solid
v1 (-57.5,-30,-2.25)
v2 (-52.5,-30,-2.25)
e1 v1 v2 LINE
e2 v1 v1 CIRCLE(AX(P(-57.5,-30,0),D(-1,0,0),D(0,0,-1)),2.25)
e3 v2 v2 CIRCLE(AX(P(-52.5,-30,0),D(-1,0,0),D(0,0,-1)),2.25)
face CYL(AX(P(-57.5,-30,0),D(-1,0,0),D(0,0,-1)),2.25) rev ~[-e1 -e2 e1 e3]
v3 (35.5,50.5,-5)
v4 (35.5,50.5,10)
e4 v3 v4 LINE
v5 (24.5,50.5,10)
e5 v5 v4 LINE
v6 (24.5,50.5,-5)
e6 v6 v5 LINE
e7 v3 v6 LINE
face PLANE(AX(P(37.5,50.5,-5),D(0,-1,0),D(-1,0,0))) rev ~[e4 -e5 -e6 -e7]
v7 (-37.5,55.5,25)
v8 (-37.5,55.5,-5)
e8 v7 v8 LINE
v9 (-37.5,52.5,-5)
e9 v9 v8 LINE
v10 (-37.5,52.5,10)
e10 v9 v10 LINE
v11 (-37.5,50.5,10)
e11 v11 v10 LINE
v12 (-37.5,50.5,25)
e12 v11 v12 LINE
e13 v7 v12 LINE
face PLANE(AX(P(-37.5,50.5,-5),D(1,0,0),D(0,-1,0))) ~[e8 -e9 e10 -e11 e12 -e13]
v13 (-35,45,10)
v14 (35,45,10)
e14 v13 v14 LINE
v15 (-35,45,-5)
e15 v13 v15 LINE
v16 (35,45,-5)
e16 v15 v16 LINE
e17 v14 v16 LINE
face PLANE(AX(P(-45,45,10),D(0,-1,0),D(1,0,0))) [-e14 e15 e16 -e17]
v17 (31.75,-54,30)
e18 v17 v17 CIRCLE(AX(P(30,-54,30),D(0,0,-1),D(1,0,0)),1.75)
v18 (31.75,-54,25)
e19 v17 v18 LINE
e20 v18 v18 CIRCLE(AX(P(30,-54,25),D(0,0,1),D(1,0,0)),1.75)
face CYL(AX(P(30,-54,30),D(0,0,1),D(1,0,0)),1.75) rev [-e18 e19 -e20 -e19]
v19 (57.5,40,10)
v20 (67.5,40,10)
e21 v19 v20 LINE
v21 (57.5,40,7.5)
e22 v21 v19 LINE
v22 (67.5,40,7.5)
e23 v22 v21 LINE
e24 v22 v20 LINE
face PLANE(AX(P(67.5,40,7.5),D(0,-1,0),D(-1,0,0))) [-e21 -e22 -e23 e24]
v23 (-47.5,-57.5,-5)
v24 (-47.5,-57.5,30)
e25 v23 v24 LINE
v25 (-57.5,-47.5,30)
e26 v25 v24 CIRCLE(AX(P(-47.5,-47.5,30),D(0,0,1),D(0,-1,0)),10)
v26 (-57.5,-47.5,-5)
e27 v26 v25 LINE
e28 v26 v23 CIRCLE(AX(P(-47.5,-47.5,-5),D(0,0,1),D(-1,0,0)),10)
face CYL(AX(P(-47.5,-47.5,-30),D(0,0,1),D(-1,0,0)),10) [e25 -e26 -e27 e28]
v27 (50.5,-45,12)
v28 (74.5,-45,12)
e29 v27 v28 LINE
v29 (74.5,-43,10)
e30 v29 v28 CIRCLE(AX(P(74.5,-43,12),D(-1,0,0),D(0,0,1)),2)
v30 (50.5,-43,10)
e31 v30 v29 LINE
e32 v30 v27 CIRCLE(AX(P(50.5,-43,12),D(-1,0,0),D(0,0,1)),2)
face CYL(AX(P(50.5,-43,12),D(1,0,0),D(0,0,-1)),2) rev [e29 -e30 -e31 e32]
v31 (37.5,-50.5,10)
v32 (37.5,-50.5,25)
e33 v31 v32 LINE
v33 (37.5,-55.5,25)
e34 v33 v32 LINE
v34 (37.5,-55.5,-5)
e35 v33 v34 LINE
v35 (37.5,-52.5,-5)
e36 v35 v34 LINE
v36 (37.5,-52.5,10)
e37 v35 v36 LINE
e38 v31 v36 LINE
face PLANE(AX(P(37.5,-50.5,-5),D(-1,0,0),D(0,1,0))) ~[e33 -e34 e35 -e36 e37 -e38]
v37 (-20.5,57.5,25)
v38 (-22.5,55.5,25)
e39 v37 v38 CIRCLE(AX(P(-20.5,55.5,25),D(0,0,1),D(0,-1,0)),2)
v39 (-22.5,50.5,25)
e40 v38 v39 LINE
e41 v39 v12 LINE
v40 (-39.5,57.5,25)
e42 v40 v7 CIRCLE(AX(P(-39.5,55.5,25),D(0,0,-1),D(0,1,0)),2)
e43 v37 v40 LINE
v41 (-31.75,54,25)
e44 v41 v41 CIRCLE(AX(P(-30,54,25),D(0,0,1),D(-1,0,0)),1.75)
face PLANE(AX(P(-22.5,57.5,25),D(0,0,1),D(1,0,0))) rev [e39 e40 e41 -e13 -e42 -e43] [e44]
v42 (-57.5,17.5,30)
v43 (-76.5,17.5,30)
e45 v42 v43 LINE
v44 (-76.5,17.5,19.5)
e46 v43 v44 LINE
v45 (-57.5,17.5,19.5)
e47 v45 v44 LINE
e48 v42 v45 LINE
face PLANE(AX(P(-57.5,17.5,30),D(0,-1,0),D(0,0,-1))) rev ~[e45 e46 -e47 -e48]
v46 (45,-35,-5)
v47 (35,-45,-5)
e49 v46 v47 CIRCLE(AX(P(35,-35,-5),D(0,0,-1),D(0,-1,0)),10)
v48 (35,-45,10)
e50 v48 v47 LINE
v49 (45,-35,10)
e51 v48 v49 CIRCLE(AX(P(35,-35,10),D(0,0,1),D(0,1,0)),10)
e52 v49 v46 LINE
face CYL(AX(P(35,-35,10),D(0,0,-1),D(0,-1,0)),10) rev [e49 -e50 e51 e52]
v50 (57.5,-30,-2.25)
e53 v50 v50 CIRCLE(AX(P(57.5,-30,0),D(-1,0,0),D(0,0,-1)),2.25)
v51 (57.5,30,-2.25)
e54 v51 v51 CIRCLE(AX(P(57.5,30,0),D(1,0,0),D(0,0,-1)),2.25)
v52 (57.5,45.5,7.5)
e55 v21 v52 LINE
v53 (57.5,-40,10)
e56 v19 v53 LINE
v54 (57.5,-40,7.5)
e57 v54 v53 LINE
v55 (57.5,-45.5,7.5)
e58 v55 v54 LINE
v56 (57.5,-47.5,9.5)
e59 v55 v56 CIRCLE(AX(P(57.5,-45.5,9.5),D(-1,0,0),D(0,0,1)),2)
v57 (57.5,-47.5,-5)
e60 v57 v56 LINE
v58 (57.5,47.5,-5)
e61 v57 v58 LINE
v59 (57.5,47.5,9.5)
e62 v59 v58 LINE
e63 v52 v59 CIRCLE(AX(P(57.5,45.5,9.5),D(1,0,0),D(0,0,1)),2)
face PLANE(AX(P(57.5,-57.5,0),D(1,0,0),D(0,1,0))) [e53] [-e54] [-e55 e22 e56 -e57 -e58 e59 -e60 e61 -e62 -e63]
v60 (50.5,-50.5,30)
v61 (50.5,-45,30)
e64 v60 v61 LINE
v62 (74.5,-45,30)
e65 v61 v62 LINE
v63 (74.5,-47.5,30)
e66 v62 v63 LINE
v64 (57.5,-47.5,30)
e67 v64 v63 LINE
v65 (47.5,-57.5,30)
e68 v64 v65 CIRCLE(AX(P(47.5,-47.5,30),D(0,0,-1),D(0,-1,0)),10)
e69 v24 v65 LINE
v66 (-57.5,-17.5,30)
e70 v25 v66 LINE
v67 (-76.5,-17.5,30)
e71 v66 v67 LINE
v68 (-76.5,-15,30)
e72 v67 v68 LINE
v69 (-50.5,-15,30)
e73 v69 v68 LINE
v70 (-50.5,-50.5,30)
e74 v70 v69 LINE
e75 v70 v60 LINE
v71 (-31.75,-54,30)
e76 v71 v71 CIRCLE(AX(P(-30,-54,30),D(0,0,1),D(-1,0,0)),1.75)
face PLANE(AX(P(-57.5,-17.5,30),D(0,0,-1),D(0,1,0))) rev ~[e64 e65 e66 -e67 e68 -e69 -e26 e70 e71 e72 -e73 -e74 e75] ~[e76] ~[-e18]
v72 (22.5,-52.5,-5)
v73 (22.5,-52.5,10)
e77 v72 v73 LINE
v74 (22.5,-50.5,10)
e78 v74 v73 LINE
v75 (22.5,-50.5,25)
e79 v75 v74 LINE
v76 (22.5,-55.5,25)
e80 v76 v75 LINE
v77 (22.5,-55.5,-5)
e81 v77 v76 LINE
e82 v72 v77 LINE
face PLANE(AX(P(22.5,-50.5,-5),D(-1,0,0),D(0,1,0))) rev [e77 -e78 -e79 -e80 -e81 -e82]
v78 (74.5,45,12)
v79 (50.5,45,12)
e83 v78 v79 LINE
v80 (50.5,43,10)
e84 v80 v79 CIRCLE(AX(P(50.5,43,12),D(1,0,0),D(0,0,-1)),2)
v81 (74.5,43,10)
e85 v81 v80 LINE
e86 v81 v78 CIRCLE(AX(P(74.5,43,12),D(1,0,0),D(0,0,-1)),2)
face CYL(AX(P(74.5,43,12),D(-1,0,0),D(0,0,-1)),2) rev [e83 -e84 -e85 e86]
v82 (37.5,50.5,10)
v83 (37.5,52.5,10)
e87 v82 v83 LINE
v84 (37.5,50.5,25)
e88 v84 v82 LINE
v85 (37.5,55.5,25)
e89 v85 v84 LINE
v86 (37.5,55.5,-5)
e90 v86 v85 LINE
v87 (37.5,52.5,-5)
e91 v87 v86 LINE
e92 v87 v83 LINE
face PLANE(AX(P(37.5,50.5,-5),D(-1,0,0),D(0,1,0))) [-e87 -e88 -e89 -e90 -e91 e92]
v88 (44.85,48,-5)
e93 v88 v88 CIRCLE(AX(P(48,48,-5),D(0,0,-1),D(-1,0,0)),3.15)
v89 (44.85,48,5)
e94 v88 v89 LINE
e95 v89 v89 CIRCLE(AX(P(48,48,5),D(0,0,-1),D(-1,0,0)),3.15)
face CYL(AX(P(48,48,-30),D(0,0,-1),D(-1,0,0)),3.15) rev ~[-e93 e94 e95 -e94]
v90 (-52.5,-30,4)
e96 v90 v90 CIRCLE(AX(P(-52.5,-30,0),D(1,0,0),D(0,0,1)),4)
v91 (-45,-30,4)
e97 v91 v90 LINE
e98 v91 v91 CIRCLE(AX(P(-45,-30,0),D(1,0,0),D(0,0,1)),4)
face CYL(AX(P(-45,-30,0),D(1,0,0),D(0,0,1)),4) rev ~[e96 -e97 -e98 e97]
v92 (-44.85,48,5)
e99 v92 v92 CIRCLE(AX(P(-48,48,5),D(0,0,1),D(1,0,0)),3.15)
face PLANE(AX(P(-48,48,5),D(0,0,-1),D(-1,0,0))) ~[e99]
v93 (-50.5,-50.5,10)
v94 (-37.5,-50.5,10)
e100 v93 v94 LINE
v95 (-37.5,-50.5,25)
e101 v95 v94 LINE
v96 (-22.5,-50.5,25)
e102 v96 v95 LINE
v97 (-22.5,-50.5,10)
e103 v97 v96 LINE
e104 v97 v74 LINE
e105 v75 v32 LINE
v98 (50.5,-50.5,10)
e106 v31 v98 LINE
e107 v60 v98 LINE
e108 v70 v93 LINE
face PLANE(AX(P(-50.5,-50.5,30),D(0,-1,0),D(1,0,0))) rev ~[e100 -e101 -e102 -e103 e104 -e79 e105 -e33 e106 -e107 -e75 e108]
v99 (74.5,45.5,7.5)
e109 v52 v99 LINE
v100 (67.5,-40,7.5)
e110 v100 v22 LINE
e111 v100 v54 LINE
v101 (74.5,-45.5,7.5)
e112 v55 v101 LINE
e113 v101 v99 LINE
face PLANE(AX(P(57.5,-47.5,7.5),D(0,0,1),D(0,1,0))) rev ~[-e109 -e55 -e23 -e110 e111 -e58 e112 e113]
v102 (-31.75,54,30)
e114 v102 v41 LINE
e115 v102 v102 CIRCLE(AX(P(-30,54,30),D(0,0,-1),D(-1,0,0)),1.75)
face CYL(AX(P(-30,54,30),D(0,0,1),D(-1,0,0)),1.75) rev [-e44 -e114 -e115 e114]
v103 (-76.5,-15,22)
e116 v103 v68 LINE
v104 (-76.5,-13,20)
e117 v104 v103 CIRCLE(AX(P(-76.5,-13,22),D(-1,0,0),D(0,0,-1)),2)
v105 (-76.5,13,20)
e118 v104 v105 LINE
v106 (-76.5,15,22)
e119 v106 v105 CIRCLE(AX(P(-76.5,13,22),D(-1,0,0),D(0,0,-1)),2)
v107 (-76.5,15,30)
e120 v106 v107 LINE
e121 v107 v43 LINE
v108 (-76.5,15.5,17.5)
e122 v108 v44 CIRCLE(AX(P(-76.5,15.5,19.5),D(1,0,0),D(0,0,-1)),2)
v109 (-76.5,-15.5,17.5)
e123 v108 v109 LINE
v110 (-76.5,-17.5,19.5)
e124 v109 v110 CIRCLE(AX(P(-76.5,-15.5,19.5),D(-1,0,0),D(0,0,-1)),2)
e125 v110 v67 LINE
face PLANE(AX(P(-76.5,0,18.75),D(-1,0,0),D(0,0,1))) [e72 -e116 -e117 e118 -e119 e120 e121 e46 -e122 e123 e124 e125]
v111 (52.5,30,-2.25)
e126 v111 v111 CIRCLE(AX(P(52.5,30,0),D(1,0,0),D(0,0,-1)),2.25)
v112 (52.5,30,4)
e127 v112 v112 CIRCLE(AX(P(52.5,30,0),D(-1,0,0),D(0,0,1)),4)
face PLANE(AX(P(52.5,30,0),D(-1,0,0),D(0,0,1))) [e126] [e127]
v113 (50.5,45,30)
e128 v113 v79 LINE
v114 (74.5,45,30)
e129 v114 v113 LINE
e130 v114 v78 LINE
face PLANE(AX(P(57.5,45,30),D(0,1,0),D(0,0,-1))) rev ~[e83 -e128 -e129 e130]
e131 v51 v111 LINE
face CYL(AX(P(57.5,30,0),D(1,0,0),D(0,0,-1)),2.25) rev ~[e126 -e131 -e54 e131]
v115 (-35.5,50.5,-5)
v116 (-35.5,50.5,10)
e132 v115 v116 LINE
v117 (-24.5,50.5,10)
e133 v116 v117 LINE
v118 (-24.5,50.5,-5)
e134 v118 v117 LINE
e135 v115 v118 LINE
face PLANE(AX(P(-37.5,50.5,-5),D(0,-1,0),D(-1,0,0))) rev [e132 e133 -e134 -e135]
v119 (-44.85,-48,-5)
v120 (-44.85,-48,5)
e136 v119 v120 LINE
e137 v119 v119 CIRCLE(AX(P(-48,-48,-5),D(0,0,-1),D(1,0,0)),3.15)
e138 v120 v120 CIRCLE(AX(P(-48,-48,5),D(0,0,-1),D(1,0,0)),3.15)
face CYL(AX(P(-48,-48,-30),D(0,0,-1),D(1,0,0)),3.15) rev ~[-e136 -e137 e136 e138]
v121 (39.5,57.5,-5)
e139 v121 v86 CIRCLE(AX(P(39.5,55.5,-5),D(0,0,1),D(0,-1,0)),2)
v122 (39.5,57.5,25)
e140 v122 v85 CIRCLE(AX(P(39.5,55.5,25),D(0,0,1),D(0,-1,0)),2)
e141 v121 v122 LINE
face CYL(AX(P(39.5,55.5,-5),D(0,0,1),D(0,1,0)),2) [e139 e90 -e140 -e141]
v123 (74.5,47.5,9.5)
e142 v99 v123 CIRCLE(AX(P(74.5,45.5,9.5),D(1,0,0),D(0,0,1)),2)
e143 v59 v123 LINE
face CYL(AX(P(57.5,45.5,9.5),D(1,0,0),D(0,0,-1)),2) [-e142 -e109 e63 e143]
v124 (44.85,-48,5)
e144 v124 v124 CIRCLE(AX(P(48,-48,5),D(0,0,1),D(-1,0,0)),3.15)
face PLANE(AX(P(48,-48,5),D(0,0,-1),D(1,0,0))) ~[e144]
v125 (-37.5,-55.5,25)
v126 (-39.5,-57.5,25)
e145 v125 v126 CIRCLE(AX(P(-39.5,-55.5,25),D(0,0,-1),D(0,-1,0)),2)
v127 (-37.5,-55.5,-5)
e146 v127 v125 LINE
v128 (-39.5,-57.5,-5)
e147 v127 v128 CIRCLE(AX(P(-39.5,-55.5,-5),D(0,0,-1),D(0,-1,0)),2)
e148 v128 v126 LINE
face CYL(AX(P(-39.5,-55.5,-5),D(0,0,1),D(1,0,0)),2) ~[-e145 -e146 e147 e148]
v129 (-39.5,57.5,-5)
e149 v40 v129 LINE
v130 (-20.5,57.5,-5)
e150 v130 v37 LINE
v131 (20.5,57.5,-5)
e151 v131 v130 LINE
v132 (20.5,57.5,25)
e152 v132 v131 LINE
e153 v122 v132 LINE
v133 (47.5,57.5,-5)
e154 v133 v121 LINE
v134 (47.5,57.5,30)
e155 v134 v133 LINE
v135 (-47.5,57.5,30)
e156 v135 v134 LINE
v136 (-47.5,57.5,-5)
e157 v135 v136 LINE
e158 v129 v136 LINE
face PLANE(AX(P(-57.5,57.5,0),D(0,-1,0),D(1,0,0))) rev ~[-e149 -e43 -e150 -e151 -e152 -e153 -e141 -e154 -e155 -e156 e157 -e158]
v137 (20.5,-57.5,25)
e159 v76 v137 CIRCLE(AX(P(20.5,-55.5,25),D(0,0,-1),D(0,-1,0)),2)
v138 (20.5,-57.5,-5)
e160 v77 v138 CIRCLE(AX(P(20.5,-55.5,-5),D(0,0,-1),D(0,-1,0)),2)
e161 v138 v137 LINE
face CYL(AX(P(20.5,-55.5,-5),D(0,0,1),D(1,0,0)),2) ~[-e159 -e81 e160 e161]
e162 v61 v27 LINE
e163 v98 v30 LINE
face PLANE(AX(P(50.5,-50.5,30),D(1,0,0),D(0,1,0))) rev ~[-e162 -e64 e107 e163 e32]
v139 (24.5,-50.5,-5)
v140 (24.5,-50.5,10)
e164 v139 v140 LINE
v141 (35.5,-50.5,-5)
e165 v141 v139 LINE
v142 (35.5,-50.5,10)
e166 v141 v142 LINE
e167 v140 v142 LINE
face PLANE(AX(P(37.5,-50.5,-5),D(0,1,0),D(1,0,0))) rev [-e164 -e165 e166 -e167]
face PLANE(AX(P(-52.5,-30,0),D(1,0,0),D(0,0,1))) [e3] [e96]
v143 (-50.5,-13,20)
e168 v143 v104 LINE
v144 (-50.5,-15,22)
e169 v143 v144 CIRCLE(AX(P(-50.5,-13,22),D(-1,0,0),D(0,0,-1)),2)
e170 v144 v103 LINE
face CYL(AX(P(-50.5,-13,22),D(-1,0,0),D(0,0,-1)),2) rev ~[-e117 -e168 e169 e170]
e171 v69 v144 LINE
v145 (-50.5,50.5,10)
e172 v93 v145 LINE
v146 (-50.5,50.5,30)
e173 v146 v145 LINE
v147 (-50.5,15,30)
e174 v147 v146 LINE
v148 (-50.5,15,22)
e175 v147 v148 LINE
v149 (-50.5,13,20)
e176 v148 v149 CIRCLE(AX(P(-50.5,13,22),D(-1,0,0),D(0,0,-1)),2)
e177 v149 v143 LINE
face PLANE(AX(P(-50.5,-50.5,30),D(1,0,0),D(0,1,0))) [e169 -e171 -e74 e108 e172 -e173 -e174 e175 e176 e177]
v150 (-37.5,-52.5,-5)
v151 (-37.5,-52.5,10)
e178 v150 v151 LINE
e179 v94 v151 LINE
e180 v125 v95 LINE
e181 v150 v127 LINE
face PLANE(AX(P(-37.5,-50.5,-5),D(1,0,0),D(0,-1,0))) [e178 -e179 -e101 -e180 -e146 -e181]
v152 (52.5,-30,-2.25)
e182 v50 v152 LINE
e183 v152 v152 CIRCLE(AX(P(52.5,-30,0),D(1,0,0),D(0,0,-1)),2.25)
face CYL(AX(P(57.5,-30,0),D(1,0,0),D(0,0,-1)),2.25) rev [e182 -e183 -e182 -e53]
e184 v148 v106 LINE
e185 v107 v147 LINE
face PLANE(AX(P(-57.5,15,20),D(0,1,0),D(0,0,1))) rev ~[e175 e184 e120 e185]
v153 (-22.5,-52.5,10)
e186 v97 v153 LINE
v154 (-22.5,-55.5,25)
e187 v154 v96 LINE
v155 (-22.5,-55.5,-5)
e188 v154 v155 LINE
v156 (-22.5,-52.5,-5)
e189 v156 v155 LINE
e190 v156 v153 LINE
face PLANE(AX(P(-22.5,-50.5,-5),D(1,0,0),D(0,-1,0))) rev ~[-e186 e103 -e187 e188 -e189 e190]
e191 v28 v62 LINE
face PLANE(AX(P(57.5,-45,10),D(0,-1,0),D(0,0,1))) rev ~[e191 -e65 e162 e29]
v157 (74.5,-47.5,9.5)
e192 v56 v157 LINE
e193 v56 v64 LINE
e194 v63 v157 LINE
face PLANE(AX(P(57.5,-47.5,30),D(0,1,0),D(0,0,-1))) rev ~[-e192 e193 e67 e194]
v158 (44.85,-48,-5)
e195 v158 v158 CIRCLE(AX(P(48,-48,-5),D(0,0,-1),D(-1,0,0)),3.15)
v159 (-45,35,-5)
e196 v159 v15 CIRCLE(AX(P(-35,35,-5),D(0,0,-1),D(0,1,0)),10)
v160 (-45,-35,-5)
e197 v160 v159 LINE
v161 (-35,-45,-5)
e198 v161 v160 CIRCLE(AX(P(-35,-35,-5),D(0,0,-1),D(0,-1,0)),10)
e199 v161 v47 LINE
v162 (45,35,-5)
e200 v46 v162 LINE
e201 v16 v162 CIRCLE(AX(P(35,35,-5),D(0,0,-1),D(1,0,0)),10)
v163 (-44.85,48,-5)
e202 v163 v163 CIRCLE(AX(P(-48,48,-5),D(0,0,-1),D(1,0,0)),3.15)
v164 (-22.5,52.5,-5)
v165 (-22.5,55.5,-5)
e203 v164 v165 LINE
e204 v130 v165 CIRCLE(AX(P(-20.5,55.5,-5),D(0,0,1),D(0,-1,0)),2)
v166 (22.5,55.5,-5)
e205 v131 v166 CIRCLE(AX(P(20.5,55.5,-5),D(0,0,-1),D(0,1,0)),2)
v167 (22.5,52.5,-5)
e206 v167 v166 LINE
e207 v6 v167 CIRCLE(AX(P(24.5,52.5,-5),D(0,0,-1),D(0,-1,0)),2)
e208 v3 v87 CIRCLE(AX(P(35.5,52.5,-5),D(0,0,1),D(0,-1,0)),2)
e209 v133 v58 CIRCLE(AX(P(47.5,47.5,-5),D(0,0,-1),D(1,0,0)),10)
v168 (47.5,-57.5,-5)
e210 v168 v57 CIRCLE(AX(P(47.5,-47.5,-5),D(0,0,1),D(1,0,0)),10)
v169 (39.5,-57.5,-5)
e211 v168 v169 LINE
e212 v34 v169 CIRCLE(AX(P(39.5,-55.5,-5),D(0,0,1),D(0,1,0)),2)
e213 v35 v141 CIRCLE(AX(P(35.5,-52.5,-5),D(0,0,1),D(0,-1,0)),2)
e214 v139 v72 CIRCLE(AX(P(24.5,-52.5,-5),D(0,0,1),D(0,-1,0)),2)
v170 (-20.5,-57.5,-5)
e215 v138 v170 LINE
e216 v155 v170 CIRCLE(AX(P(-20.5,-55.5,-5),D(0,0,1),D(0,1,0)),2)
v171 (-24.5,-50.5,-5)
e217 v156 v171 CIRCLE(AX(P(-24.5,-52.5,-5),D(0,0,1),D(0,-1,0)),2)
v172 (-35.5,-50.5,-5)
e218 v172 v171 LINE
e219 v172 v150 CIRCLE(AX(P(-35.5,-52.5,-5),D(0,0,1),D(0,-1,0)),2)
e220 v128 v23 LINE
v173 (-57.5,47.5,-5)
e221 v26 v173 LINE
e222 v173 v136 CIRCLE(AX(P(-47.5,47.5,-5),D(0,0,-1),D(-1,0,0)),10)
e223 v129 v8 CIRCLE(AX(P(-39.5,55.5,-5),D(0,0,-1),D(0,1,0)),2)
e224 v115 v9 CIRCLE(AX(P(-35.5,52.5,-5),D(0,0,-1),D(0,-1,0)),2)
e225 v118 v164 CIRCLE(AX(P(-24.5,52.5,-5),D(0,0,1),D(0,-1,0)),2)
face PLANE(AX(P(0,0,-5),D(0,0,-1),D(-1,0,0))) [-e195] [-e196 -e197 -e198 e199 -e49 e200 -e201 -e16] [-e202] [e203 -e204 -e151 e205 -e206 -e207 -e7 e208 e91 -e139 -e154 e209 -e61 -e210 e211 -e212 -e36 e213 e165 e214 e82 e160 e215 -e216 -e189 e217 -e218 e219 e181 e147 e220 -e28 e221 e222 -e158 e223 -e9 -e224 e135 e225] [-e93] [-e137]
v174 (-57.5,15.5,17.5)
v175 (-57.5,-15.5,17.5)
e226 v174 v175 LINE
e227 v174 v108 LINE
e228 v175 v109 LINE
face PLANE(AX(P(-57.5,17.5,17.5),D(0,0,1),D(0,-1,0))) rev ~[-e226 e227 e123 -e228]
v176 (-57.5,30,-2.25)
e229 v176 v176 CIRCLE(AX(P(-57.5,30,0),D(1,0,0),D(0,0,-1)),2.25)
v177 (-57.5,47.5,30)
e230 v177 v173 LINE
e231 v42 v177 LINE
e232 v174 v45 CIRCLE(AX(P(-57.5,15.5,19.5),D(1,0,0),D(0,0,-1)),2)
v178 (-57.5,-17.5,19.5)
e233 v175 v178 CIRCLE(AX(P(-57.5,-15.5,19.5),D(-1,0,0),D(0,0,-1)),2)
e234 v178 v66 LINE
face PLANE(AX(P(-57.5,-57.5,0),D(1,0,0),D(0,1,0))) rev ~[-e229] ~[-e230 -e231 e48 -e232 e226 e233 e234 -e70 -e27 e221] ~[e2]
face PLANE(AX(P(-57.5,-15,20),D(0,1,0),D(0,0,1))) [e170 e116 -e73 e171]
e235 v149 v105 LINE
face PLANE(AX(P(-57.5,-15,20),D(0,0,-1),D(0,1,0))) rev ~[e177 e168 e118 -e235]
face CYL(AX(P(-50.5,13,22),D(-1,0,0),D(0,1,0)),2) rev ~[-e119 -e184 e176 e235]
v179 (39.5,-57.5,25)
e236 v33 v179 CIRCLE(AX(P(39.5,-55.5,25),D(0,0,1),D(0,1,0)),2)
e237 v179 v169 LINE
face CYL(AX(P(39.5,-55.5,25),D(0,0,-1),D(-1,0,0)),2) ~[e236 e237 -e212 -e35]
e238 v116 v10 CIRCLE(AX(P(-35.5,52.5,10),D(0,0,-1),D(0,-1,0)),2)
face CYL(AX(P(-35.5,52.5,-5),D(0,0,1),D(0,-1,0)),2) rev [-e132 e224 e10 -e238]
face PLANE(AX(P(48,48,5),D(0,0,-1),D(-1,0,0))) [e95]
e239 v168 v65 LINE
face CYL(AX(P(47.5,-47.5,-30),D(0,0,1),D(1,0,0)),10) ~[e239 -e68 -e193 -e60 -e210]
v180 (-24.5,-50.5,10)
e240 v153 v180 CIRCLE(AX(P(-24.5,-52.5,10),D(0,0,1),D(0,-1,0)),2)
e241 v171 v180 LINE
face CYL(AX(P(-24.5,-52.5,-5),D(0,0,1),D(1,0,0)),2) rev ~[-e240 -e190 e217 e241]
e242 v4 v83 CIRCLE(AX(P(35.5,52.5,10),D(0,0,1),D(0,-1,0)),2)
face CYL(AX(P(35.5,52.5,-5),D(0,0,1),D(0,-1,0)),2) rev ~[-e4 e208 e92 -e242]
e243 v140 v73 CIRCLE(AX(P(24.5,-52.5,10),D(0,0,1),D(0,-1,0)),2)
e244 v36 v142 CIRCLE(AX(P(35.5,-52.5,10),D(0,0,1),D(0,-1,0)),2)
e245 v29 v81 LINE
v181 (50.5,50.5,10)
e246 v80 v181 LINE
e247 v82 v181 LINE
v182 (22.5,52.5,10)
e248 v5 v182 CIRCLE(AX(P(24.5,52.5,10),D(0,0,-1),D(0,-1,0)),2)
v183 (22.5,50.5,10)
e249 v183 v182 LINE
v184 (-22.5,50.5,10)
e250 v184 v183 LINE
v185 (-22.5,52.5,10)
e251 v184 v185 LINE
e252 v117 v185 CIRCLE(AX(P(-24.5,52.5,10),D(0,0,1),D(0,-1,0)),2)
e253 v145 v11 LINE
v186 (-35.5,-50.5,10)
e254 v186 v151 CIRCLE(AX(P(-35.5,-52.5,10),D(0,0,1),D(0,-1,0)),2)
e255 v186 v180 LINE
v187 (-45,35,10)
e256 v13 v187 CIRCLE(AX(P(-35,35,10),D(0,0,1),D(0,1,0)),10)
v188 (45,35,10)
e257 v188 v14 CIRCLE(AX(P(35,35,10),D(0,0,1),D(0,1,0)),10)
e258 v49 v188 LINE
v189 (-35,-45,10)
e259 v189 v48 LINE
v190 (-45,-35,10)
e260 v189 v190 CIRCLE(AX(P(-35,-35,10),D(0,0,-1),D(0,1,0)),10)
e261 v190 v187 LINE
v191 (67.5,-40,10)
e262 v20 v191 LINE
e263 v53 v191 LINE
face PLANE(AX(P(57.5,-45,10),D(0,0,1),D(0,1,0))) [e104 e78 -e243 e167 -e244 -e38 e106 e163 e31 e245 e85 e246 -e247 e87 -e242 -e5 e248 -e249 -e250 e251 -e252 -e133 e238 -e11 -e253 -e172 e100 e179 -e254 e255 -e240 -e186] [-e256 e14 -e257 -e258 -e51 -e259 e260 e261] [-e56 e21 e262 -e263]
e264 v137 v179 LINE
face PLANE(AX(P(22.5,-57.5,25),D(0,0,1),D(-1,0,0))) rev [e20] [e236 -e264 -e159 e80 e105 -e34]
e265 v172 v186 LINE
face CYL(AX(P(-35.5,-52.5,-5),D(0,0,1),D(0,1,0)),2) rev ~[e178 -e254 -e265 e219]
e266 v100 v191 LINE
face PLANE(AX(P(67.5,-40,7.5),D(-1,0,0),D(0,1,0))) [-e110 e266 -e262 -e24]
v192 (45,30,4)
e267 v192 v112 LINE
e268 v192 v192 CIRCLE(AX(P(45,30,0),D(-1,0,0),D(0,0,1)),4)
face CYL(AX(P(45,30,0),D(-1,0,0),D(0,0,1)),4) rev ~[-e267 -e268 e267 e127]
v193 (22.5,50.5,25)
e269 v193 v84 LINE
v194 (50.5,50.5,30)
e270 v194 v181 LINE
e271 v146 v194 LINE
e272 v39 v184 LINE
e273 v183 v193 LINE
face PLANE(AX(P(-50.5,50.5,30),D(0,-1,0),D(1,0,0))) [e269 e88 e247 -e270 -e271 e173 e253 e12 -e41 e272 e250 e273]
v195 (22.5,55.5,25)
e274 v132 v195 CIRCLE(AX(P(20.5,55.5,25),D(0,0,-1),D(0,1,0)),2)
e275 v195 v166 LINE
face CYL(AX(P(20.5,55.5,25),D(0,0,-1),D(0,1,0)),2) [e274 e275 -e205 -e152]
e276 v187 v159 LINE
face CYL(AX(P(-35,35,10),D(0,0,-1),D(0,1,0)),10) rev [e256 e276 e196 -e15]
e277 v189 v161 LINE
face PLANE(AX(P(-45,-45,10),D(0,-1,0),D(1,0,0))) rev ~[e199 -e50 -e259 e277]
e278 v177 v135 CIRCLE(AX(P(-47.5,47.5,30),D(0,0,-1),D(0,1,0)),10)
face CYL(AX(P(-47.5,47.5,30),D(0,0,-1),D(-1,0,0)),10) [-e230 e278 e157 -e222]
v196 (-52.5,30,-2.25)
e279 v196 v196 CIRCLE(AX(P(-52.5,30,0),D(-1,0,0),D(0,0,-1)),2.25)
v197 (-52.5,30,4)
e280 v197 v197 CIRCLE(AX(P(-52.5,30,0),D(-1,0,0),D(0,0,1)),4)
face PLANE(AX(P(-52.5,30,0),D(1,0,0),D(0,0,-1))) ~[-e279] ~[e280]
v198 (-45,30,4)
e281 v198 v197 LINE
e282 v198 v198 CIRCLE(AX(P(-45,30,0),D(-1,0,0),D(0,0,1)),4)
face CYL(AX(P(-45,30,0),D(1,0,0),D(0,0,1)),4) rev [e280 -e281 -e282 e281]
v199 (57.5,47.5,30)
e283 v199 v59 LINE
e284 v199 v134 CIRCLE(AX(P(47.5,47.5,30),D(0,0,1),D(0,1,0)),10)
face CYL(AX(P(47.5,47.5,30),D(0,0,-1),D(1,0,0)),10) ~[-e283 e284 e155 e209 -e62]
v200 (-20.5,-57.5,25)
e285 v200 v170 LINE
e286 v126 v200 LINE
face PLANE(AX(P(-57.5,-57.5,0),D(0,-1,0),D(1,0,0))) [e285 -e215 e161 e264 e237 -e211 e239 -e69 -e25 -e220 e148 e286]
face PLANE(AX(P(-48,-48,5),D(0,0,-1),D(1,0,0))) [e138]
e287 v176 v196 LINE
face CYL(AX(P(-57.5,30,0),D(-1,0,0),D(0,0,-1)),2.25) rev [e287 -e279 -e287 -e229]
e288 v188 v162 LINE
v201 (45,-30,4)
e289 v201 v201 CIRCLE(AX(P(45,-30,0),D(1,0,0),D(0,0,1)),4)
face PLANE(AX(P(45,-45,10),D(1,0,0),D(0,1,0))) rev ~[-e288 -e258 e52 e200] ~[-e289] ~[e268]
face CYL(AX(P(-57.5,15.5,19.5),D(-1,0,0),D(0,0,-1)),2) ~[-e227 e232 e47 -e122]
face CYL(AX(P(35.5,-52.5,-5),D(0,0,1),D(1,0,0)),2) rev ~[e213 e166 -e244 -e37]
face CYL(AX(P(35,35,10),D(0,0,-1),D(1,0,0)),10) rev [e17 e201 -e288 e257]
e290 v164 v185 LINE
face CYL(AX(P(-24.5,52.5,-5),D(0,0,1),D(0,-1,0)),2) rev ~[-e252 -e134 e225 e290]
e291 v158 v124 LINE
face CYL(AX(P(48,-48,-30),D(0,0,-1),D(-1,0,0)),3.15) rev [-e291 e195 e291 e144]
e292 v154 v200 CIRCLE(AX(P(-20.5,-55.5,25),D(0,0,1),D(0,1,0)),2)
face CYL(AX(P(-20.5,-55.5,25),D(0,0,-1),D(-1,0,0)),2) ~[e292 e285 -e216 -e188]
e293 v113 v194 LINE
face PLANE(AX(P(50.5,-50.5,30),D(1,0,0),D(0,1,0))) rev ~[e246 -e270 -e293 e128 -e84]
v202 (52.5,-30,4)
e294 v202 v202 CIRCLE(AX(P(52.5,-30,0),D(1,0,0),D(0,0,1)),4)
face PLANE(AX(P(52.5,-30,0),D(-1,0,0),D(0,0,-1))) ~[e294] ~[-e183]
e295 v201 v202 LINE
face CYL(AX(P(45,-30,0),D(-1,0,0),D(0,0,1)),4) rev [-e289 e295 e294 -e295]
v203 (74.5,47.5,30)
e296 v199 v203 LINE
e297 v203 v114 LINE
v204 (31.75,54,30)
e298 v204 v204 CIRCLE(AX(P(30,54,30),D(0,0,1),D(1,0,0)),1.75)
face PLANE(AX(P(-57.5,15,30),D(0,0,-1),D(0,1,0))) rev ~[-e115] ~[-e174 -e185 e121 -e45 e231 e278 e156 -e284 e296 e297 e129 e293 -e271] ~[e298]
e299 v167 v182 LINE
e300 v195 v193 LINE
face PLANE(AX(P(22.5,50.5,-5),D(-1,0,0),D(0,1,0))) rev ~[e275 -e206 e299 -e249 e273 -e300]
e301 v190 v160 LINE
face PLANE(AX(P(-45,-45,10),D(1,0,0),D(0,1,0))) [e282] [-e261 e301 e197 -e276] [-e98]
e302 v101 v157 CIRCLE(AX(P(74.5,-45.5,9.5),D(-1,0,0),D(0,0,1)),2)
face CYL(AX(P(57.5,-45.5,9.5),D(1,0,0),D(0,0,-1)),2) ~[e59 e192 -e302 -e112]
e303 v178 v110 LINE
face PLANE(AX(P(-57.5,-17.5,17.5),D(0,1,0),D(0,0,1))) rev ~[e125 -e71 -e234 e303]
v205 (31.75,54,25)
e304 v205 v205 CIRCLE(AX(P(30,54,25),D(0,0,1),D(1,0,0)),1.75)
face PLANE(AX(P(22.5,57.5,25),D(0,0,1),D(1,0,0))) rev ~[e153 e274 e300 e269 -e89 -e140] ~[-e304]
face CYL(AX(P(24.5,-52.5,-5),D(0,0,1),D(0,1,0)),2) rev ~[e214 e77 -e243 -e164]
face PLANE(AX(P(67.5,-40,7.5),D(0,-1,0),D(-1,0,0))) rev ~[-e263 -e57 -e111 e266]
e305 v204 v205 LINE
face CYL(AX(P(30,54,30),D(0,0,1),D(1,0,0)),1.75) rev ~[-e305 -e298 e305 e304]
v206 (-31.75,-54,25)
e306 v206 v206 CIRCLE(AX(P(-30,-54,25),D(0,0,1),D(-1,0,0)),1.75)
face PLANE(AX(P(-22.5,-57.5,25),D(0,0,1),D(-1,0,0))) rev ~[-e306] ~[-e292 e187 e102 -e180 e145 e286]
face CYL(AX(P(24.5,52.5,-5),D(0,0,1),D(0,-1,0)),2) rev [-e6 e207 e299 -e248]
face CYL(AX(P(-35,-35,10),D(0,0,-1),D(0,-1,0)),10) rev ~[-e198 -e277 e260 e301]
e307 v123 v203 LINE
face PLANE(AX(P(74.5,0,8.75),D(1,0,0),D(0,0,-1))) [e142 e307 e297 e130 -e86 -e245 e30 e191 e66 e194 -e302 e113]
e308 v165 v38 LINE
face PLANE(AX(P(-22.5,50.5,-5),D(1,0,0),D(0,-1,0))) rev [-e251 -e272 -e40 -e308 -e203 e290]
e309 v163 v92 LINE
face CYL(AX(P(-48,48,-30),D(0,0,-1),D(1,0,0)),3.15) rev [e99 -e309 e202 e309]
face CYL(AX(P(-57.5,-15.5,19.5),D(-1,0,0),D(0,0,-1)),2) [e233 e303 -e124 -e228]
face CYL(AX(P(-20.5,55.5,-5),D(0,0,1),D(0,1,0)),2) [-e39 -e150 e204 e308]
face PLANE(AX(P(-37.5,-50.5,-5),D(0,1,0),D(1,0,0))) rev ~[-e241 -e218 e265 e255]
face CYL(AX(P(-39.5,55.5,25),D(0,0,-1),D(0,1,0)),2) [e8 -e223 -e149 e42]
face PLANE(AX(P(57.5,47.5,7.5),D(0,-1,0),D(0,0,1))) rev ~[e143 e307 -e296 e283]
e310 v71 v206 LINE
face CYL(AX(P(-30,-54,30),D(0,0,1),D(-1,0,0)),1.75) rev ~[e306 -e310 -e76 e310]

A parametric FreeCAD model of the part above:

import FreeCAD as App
import Part
import Sketcher
from FreeCAD import Vector


def edges_at(feature, points):
    """Names of the edges that pass closest to the given points."""
    edges = feature.Shape.Edges
    near = lambda p: min(range(len(edges)), key=lambda i: edges[i].distToShape(Part.Vertex(*p))[0])
    return sorted({f"Edge{near(p) + 1}" for p in points})


def add_polygon(sketch, points):
    """Adds a closed chain of lines whose ends are joined by coincident constraints."""
    first, n = sketch.GeometryCount, len(points)
    for a, b in zip(points, points[1:] + points[:1]):
        sketch.addGeometry(Part.LineSegment(App.Vector(*a, 0), App.Vector(*b, 0)), False)
    for i in range(n):
        sketch.addConstraint(Sketcher.Constraint("Coincident", first + i, 2, first + (i + 1) % n, 1))

doc = App.newDocument("Part")
body = doc.addObject("PartDesign::Body", "Body")

# Sketch on XY plane
sketch1 = body.newObject("Sketcher::SketchObject", "Sketch")
sketch1.AttachmentSupport = (doc.getObject("XY_Plane"), [""])
sketch1.MapMode = "FlatFace"
add_polygon(sketch1, [(-58, 58), (-58, -58), (58, -58), (58, 58)])  # lines 0-3
sketch1.addConstraint([
    Sketcher.Constraint("Vertical", 0),
    Sketcher.Constraint("Horizontal", 1),
    Sketcher.Constraint("Vertical", 2),
    Sketcher.Constraint("Horizontal", 3),
    Sketcher.Constraint("Symmetric", 0, 2, 2, 2, -1, 1),
    Sketcher.Constraint("Equal", 3, 0),
    Sketcher.Constraint("DistanceX", 1, 1, 1, 2, 115.0),
])
pad1 = body.newObject("PartDesign::Pad", "Pad")
pad1.Profile = sketch1
pad1.Length = 60
pad1.Midplane = True
doc.recompute()

fillet = body.newObject("PartDesign::Fillet", "Fillet")
fillet.Base = (pad1, edges_at(pad1, [
    (-57.5, 57.5, 0),
    (57.5, 57.5, 0),
    (57.5, -57.5, 0),
    (-57.5, -57.5, 0),
]))
fillet.Radius = 10

# Sketch on XY plane
sketch2 = body.newObject("Sketcher::SketchObject", "Sketch001")
sketch2.AttachmentSupport = (doc.getObject("XY_Plane"), [""])
sketch2.MapMode = "FlatFace"
sketch2.AttachmentOffset = App.Placement(Vector(0, 0, 30), App.Rotation())
add_polygon(sketch2, [(-50, 50), (-50, -50), (50, -50), (50, 50)])  # lines 0-3
sketch2.addConstraint([
    Sketcher.Constraint("Vertical", 0),
    Sketcher.Constraint("Horizontal", 1),
    Sketcher.Constraint("Vertical", 2),
    Sketcher.Constraint("Horizontal", 3),
    Sketcher.Constraint("Symmetric", 0, 2, 2, 2, -1, 1),
    Sketcher.Constraint("Equal", 3, 0),
    Sketcher.Constraint("DistanceX", 1, 1, 1, 2, 101.0),
])
pocket1 = body.newObject("PartDesign::Pocket", "Pocket")
pocket1.Profile = sketch2
pocket1.Length = 20

# Sketch on XY plane
sketch3 = body.newObject("Sketcher::SketchObject", "Sketch002")
sketch3.AttachmentSupport = (doc.getObject("XY_Plane"), [""])
sketch3.MapMode = "FlatFace"
sketch3.AttachmentOffset = App.Placement(Vector(0, 0, 10), App.Rotation())
add_polygon(sketch3, [(-45, 45), (-45, -45), (45, -45), (45, 45)])  # lines 0-3
sketch3.addConstraint([
    Sketcher.Constraint("Vertical", 0),
    Sketcher.Constraint("Horizontal", 1),
    Sketcher.Constraint("Vertical", 2),
    Sketcher.Constraint("Horizontal", 3),
    Sketcher.Constraint("Symmetric", 0, 2, 2, 2, -1, 1),
    Sketcher.Constraint("Equal", 3, 0),
    Sketcher.Constraint("DistanceX", 1, 1, 1, 2, 90.0),
])
pocket2 = body.newObject("PartDesign::Pocket", "Pocket001")
pocket2.Profile = sketch3
pocket2.Length = 60
doc.recompute()

fillet2 = body.newObject("PartDesign::Fillet", "Fillet001")
fillet2.Base = (pocket2, edges_at(pocket2, [
    (-45, -45, -10),
    (-45, 45, -10),
    (45, 45, -10),
    (45, -45, -10),
]))
fillet2.Radius = 10

# Sketch on XY plane
sketch4 = body.newObject("Sketcher::SketchObject", "Sketch003")
sketch4.AttachmentSupport = (doc.getObject("XY_Plane"), [""])
sketch4.MapMode = "FlatFace"
sketch4.AttachmentOffset = App.Placement(Vector(0, 0, -30), App.Rotation())
sketch4.addGeometry(Part.Circle(Vector(48, 48, 0), Vector(0, 0, 1), 3.1), False)
sketch4.addConstraint([
    Sketcher.Constraint("Diameter", 0, 6.3),
    Sketcher.Constraint("DistanceX", -1, 1, 0, 3, 48.0),
    Sketcher.Constraint("DistanceY", -1, 1, 0, 3, 48.0),
])
pocket3 = body.newObject("PartDesign::Pocket", "Pocket002")
pocket3.Profile = sketch4
pocket3.Length = 35
pocket3.Reversed = True
doc.recompute()

mirrored = body.newObject("PartDesign::Mirrored", "Mirrored")
mirrored.Originals = [pocket3]
mirrored.MirrorPlane = (doc.getObject("XZ_Plane"), [""])
body.Tip = mirrored
doc.recompute()

mirrored2 = body.newObject("PartDesign::Mirrored", "Mirrored001")
mirrored2.Originals = [pocket3]
mirrored2.MirrorPlane = (doc.getObject("YZ_Plane"), [""])
body.Tip = mirrored2

# Sketch on XY plane
sketch5 = body.newObject("Sketcher::SketchObject", "Sketch004")
sketch5.AttachmentSupport = (doc.getObject("XY_Plane"), [""])
sketch5.MapMode = "FlatFace"
sketch5.AttachmentOffset = App.Placement(Vector(0, 0, -30), App.Rotation())
sketch5.addGeometry(Part.Circle(Vector(-48, -48, 0), Vector(0, 0, 1), 3.1), False)
sketch5.addConstraint([
    Sketcher.Constraint("Diameter", 0, 6.3),
    Sketcher.Constraint("DistanceX", 0, 3, -1, 1, 48.0),
    Sketcher.Constraint("DistanceY", 0, 3, -1, 1, 48.0),
])
pocket4 = body.newObject("PartDesign::Pocket", "Pocket003")
pocket4.Profile = sketch5
pocket4.Length = 35
pocket4.Reversed = True

# Sketch on YZ plane
sketch6 = body.newObject("Sketcher::SketchObject", "Sketch005")
sketch6.AttachmentSupport = (doc.getObject("YZ_Plane"), [""])
sketch6.MapMode = "FlatFace"
sketch6.AttachmentOffset = App.Placement(Vector(0, 0, 57.5), App.Rotation())
add_polygon(sketch6, [(45, 50), (-45, 50), (-45, 10), (45, 10)])  # lines 0-3
sketch6.addConstraint([
    Sketcher.Constraint("Horizontal", 0),
    Sketcher.Constraint("Vertical", 1),
    Sketcher.Constraint("Horizontal", 2),
    Sketcher.Constraint("Vertical", 3),
    Sketcher.Constraint("DistanceX", 0, 2, 0, 1, 90.0),
    Sketcher.Constraint("DistanceY", 1, 2, 1, 1, 40.0),
    Sketcher.Constraint("DistanceX", 0, 2, -1, 1, 45.0),
    Sketcher.Constraint("DistanceY", -1, 1, 0, 2, 50.0),
])
pocket5 = body.newObject("PartDesign::Pocket", "Pocket004")
pocket5.Profile = sketch6
pocket5.Length = 11

# Sketch on YZ plane
sketch7 = body.newObject("Sketcher::SketchObject", "Sketch006")
sketch7.AttachmentSupport = (doc.getObject("YZ_Plane"), [""])
sketch7.MapMode = "FlatFace"
sketch7.AttachmentOffset = App.Placement(Vector(0, 0, 57.5), App.Rotation())
add_polygon(sketch7, [(45, 10), (-45, 10), (-45, 30), (-47.5, 30), (-47.5, 7.5), (47.5, 7.5), (47.5, 30), (45, 30)])  # lines 0-7
sketch7.addConstraint([
    Sketcher.Constraint("Horizontal", 0),
    Sketcher.Constraint("Vertical", 1),
    Sketcher.Constraint("Horizontal", 2),
    Sketcher.Constraint("Vertical", 3),
    Sketcher.Constraint("Horizontal", 4),
    Sketcher.Constraint("Vertical", 5),
    Sketcher.Constraint("Horizontal", 6),
    Sketcher.Constraint("Vertical", 7),
    Sketcher.Constraint("Symmetric", 2, 2, 5, 2, -2),
    Sketcher.Constraint("Equal", 2, 6),
    Sketcher.Constraint("DistanceX", 0, 2, 0, 1, 90.0),
    Sketcher.Constraint("DistanceX", 4, 1, 4, 2, 95.0),
    Sketcher.Constraint("DistanceY", 1, 1, 1, 2, 20.0),
    Sketcher.Constraint("DistanceY", 3, 2, 3, 1, 22.5),
    Sketcher.Constraint("DistanceY", -1, 1, 0, 2, 10.0),
])
pad2 = body.newObject("PartDesign::Pad", "Pad001")
pad2.Profile = sketch7
pad2.Length = 17
doc.recompute()

fillet3 = body.newObject("PartDesign::Fillet", "Fillet002")
fillet3.Base = (pad2, edges_at(pad2, [
    (62.5, 45, 10),
    (62.5, -45, 10),
    (66, -47.5, 7.5),
    (66, 47.5, 7.5),
]))
fillet3.Radius = 2

# Sketch on YZ plane
sketch8 = body.newObject("Sketcher::SketchObject", "Sketch007")
sketch8.AttachmentSupport = (doc.getObject("YZ_Plane"), [""])
sketch8.MapMode = "FlatFace"
sketch8.AttachmentOffset = App.Placement(Vector(0, 0, -57.5), App.Rotation())
add_polygon(sketch8, [(15, 20), (-15, 20), (-15, 40), (15, 40)])  # lines 0-3
sketch8.addConstraint([
    Sketcher.Constraint("Horizontal", 0),
    Sketcher.Constraint("Vertical", 1),
    Sketcher.Constraint("Horizontal", 2),
    Sketcher.Constraint("Vertical", 3),
    Sketcher.Constraint("DistanceX", 0, 2, 0, 1, 30.0),
    Sketcher.Constraint("DistanceY", 1, 1, 1, 2, 20.0),
    Sketcher.Constraint("DistanceX", 0, 2, -1, 1, 15.0),
    Sketcher.Constraint("DistanceY", -1, 1, 0, 2, 20.0),
])
pocket6 = body.newObject("PartDesign::Pocket", "Pocket005")
pocket6.Profile = sketch8
pocket6.Length = 11
pocket6.Reversed = True

# Sketch on YZ plane
sketch9 = body.newObject("Sketcher::SketchObject", "Sketch008")
sketch9.AttachmentSupport = (doc.getObject("YZ_Plane"), [""])
sketch9.MapMode = "FlatFace"
sketch9.AttachmentOffset = App.Placement(Vector(0, 0, -57.5), App.Rotation())
add_polygon(sketch9, [(17.5, 17.5), (-17.5, 17.5), (-17.5, 30), (-15, 30), (-15, 20), (15, 20), (15, 30), (17.5, 30)])  # lines 0-7
sketch9.addConstraint([
    Sketcher.Constraint("Horizontal", 0),
    Sketcher.Constraint("Vertical", 1),
    Sketcher.Constraint("Horizontal", 2),
    Sketcher.Constraint("Vertical", 3),
    Sketcher.Constraint("Horizontal", 4),
    Sketcher.Constraint("Vertical", 5),
    Sketcher.Constraint("Horizontal", 6),
    Sketcher.Constraint("Vertical", 7),
    Sketcher.Constraint("Symmetric", 2, 2, 5, 2, -2),
    Sketcher.Constraint("Equal", 2, 6),
    Sketcher.Constraint("DistanceX", 0, 2, 0, 1, 35.0),
    Sketcher.Constraint("DistanceX", 4, 1, 4, 2, 30.0),
    Sketcher.Constraint("DistanceY", 3, 2, 3, 1, 10.0),
    Sketcher.Constraint("DistanceY", 1, 1, 1, 2, 12.5),
    Sketcher.Constraint("DistanceY", -1, 1, 1, 2, 30.0),
])
pad3 = body.newObject("PartDesign::Pad", "Pad002")
pad3.Profile = sketch9
pad3.Length = 19
pad3.Reversed = True
doc.recompute()

fillet4 = body.newObject("PartDesign::Fillet", "Fillet003")
fillet4.Base = (pad3, edges_at(pad3, [
    (-63.5, -15, 20),
    (-63.5, 15, 20),
    (-67, 17.5, 17.5),
    (-67, -17.5, 17.5),
]))
fillet4.Radius = 2

# Sketch on XY plane
sketch10 = body.newObject("Sketcher::SketchObject", "Sketch009")
sketch10.AttachmentSupport = (doc.getObject("XY_Plane"), [""])
sketch10.MapMode = "FlatFace"
sketch10.AttachmentOffset = App.Placement(Vector(0, 0, -30), App.Rotation())
add_polygon(sketch10, [(58, 58), (58, -58), (-58, -58), (-58, 58)])  # lines 0-3
sketch10.addConstraint([
    Sketcher.Constraint("Vertical", 0),
    Sketcher.Constraint("Horizontal", 1),
    Sketcher.Constraint("Vertical", 2),
    Sketcher.Constraint("Horizontal", 3),
    Sketcher.Constraint("Symmetric", 0, 2, 2, 2, -1, 1),
    Sketcher.Constraint("Equal", 3, 0),
    Sketcher.Constraint("DistanceX", 1, 2, 1, 1, 115.0),
])
pocket7 = body.newObject("PartDesign::Pocket", "Pocket006")
pocket7.Profile = sketch10
pocket7.Length = 25
pocket7.Reversed = True

# Sketch on XY plane
sketch11 = body.newObject("Sketcher::SketchObject", "Sketch010")
sketch11.AttachmentSupport = (doc.getObject("XY_Plane"), [""])
sketch11.MapMode = "FlatFace"
sketch11.AttachmentOffset = App.Placement(Vector(0, 0, 7.5), App.Rotation())
add_polygon(sketch11, [(68, 40), (68, -40), (58, -40), (58, 40)])  # lines 0-3
sketch11.addConstraint([
    Sketcher.Constraint("Vertical", 0),
    Sketcher.Constraint("Horizontal", 1),
    Sketcher.Constraint("Vertical", 2),
    Sketcher.Constraint("Horizontal", 3),
    Sketcher.Constraint("DistanceX", 1, 2, 1, 1, 10.0),
    Sketcher.Constraint("DistanceY", 0, 2, 0, 1, 80.0),
    Sketcher.Constraint("DistanceY", 0, 2, -1, 1, 40.0),
    Sketcher.Constraint("DistanceX", -1, 1, 0, 2, 67.5),
])
pocket8 = body.newObject("PartDesign::Pocket", "Pocket007")
pocket8.Profile = sketch11
pocket8.Length = 15
pocket8.Reversed = True

# Sketch on YZ plane
sketch12 = body.newObject("Sketcher::SketchObject", "Sketch011")
sketch12.AttachmentSupport = (doc.getObject("YZ_Plane"), [""])
sketch12.MapMode = "FlatFace"
sketch12.AttachmentOffset = App.Placement(Vector(0, 0, 57.5), App.Rotation())
sketch12.addGeometry(Part.Circle(Vector(30, 0, 0), Vector(0, 0, 1), 2.2), False)
sketch12.addConstraint([
    Sketcher.Constraint("PointOnObject", 0, 3, -1),
    Sketcher.Constraint("Diameter", 0, 4.5),
    Sketcher.Constraint("DistanceX", -1, 1, 0, 3, 30.0),
])
pocket9 = body.newObject("PartDesign::Pocket", "Pocket008")
pocket9.Profile = sketch12
pocket9.Length = 25
doc.recompute()

mirrored3 = body.newObject("PartDesign::Mirrored", "Mirrored002")
mirrored3.Originals = [pocket9]
mirrored3.MirrorPlane = (doc.getObject("YZ_Plane"), [""])
body.Tip = mirrored3
doc.recompute()

mirrored4 = body.newObject("PartDesign::Mirrored", "Mirrored003")
mirrored4.Originals = [pocket9]
mirrored4.MirrorPlane = (doc.getObject("XZ_Plane"), [""])
body.Tip = mirrored4

# Sketch on YZ plane
sketch13 = body.newObject("Sketcher::SketchObject", "Sketch012")
sketch13.AttachmentSupport = (doc.getObject("YZ_Plane"), [""])
sketch13.MapMode = "FlatFace"
sketch13.AttachmentOffset = App.Placement(Vector(0, 0, -57.5), App.Rotation())
sketch13.addGeometry(Part.Circle(Vector(-30, 0, 0), Vector(0, 0, 1), 2.2), False)
sketch13.addConstraint([
    Sketcher.Constraint("PointOnObject", 0, 3, -1),
    Sketcher.Constraint("Diameter", 0, 4.5),
    Sketcher.Constraint("DistanceX", 0, 3, -1, 1, 30.0),
])
pocket10 = body.newObject("PartDesign::Pocket", "Pocket009")
pocket10.Profile = sketch13
pocket10.Length = 25
pocket10.Reversed = True

# Sketch on XY plane
sketch14 = body.newObject("Sketcher::SketchObject", "Sketch013")
sketch14.AttachmentSupport = (doc.getObject("XY_Plane"), [""])
sketch14.MapMode = "FlatFace"
sketch14.AttachmentOffset = App.Placement(Vector(0, 0, 30), App.Rotation())
sketch14.addGeometry(Part.Circle(Vector(30, 54, 0), Vector(0, 0, 1), 1.8), False)
sketch14.addConstraint([
    Sketcher.Constraint("Diameter", 0, 3.5),
    Sketcher.Constraint("DistanceX", -1, 1, 0, 3, 30.0),
    Sketcher.Constraint("DistanceY", -1, 1, 0, 3, 54.0),
])
pocket11 = body.newObject("PartDesign::Pocket", "Pocket010")
pocket11.Profile = sketch14
pocket11.Length = 20
doc.recompute()

mirrored5 = body.newObject("PartDesign::Mirrored", "Mirrored004")
mirrored5.Originals = [pocket11]
mirrored5.MirrorPlane = (doc.getObject("XZ_Plane"), [""])
body.Tip = mirrored5
doc.recompute()

mirrored6 = body.newObject("PartDesign::Mirrored", "Mirrored005")
mirrored6.Originals = [pocket11]
mirrored6.MirrorPlane = (doc.getObject("YZ_Plane"), [""])
body.Tip = mirrored6

# Sketch on XY plane
sketch15 = body.newObject("Sketcher::SketchObject", "Sketch014")
sketch15.AttachmentSupport = (doc.getObject("XY_Plane"), [""])
sketch15.MapMode = "FlatFace"
sketch15.AttachmentOffset = App.Placement(Vector(0, 0, 30), App.Rotation())
sketch15.addGeometry(Part.Circle(Vector(-30, -54, 0), Vector(0, 0, 1), 1.8), False)
sketch15.addConstraint([
    Sketcher.Constraint("Diameter", 0, 3.5),
    Sketcher.Constraint("DistanceX", 0, 3, -1, 1, 30.0),
    Sketcher.Constraint("DistanceY", 0, 3, -1, 1, 54.0),
])
pocket12 = body.newObject("PartDesign::Pocket", "Pocket011")
pocket12.Profile = sketch15
pocket12.Length = 20

# Sketch on XZ plane
sketch16 = body.newObject("Sketcher::SketchObject", "Sketch015")
sketch16.AttachmentSupport = (doc.getObject("XZ_Plane"), [""])
sketch16.MapMode = "FlatFace"
sketch16.AttachmentOffset = App.Placement(Vector(0, 0, -57.5), App.Rotation())
add_polygon(sketch16, [(22, 0), (22, 25), (38, 25), (38, 0)])  # lines 0-3
sketch16.addConstraint([
    Sketcher.Constraint("Vertical", 0),
    Sketcher.Constraint("Horizontal", 1),
    Sketcher.Constraint("Vertical", 2),
    Sketcher.Constraint("Horizontal", 3),
    Sketcher.Constraint("PointOnObject", 2, 2, -1),
    Sketcher.Constraint("DistanceX", 1, 1, 1, 2, 15.0),
    Sketcher.Constraint("DistanceY", 0, 1, 0, 2, 25.0),
    Sketcher.Constraint("DistanceX", -1, 1, 0, 2, 22.5),
])
pocket13 = body.newObject("PartDesign::Pocket", "Pocket012")
pocket13.Profile = sketch16
pocket13.Length = 7
pocket13.Reversed = True
doc.recompute()

mirrored7 = body.newObject("PartDesign::Mirrored", "Mirrored006")
mirrored7.Originals = [pocket13]
mirrored7.MirrorPlane = (doc.getObject("YZ_Plane"), [""])
body.Tip = mirrored7
doc.recompute()

mirrored8 = body.newObject("PartDesign::Mirrored", "Mirrored007")
mirrored8.Originals = [pocket13]
mirrored8.MirrorPlane = (doc.getObject("XZ_Plane"), [""])
body.Tip = mirrored8

# Sketch on XZ plane
sketch17 = body.newObject("Sketcher::SketchObject", "Sketch016")
sketch17.AttachmentSupport = (doc.getObject("XZ_Plane"), [""])
sketch17.MapMode = "FlatFace"
sketch17.AttachmentOffset = App.Placement(Vector(0, 0, 57.5), App.Rotation())
add_polygon(sketch17, [(-22, 0), (-22, 25), (-38, 25), (-38, 0)])  # lines 0-3
sketch17.addConstraint([
    Sketcher.Constraint("Vertical", 0),
    Sketcher.Constraint("Horizontal", 1),
    Sketcher.Constraint("Vertical", 2),
    Sketcher.Constraint("Horizontal", 3),
    Sketcher.Constraint("PointOnObject", 2, 2, -1),
    Sketcher.Constraint("DistanceX", 1, 2, 1, 1, 15.0),
    Sketcher.Constraint("DistanceY", 0, 1, 0, 2, 25.0),
    Sketcher.Constraint("DistanceX", 0, 2, -1, 1, 22.5),
])
pocket14 = body.newObject("PartDesign::Pocket", "Pocket013")
pocket14.Profile = sketch17
pocket14.Length = 7

# Sketch on YZ plane
sketch18 = body.newObject("Sketcher::SketchObject", "Sketch017")
sketch18.AttachmentSupport = (doc.getObject("YZ_Plane"), [""])
sketch18.MapMode = "FlatFace"
sketch18.AttachmentOffset = App.Placement(Vector(0, 0, 45), App.Rotation())
sketch18.addGeometry(Part.Circle(Vector(30, 0, 0), Vector(0, 0, 1), 4), False)
sketch18.addConstraint([
    Sketcher.Constraint("PointOnObject", 0, 3, -1),
    Sketcher.Constraint("Diameter", 0, 8.0),
    Sketcher.Constraint("DistanceX", -1, 1, 0, 3, 30.0),
])
pocket15 = body.newObject("PartDesign::Pocket", "Pocket014")
pocket15.Profile = sketch18
pocket15.Length = 7.5
pocket15.Reversed = True
doc.recompute()

mirrored9 = body.newObject("PartDesign::Mirrored", "Mirrored008")
mirrored9.Originals = [pocket15]
mirrored9.MirrorPlane = (doc.getObject("XZ_Plane"), [""])
body.Tip = mirrored9
doc.recompute()

mirrored10 = body.newObject("PartDesign::Mirrored", "Mirrored009")
mirrored10.Originals = [pocket15]
mirrored10.MirrorPlane = (doc.getObject("YZ_Plane"), [""])
body.Tip = mirrored10

# Sketch on YZ plane
sketch19 = body.newObject("Sketcher::SketchObject", "Sketch018")
sketch19.AttachmentSupport = (doc.getObject("YZ_Plane"), [""])
sketch19.MapMode = "FlatFace"
sketch19.AttachmentOffset = App.Placement(Vector(0, 0, -45), App.Rotation())
sketch19.addGeometry(Part.Circle(Vector(-30, 0, 0), Vector(0, 0, 1), 4), False)
sketch19.addConstraint([
    Sketcher.Constraint("PointOnObject", 0, 3, -1),
    Sketcher.Constraint("Diameter", 0, 8.0),
    Sketcher.Constraint("DistanceX", 0, 3, -1, 1, 30.0),
])
pocket16 = body.newObject("PartDesign::Pocket", "Pocket015")
pocket16.Profile = sketch19
pocket16.Length = 7.5

# Sketch on XY plane
sketch20 = body.newObject("Sketcher::SketchObject", "Sketch019")
sketch20.AttachmentSupport = (doc.getObject("XY_Plane"), [""])
sketch20.MapMode = "FlatFace"
sketch20.AttachmentOffset = App.Placement(Vector(0, 0, -5), App.Rotation())
add_polygon(sketch20, [(38, 64), (38, 50), (22, 50), (22, 64)])  # lines 0-3
sketch20.addConstraint([
    Sketcher.Constraint("Vertical", 0),
    Sketcher.Constraint("Horizontal", 1),
    Sketcher.Constraint("Vertical", 2),
    Sketcher.Constraint("Horizontal", 3),
    Sketcher.Constraint("DistanceX", 1, 2, 1, 1, 15.0),
    Sketcher.Constraint("DistanceY", 0, 2, 0, 1, 14.0),
    Sketcher.Constraint("DistanceX", -1, 1, 0, 2, 37.5),
    Sketcher.Constraint("DistanceY", -1, 1, 0, 2, 50.5),
])
pocket17 = body.newObject("PartDesign::Pocket", "Pocket016")
pocket17.Profile = sketch20
pocket17.Length = 20
pocket17.Reversed = True
doc.recompute()

mirrored11 = body.newObject("PartDesign::Mirrored", "Mirrored010")
mirrored11.Originals = [pocket17]
mirrored11.MirrorPlane = (doc.getObject("XZ_Plane"), [""])
body.Tip = mirrored11
doc.recompute()

mirrored12 = body.newObject("PartDesign::Mirrored", "Mirrored011")
mirrored12.Originals = [pocket17]
mirrored12.MirrorPlane = (doc.getObject("YZ_Plane"), [""])
body.Tip = mirrored12

# Sketch on XY plane
sketch21 = body.newObject("Sketcher::SketchObject", "Sketch020")
sketch21.AttachmentSupport = (doc.getObject("XY_Plane"), [""])
sketch21.MapMode = "FlatFace"
sketch21.AttachmentOffset = App.Placement(Vector(0, 0, -5), App.Rotation())
add_polygon(sketch21, [(-38, -64), (-38, -50), (-22, -50), (-22, -64)])  # lines 0-3
sketch21.addConstraint([
    Sketcher.Constraint("Vertical", 0),
    Sketcher.Constraint("Horizontal", 1),
    Sketcher.Constraint("Vertical", 2),
    Sketcher.Constraint("Horizontal", 3),
    Sketcher.Constraint("DistanceX", 1, 1, 1, 2, 15.0),
    Sketcher.Constraint("DistanceY", 0, 1, 0, 2, 14.0),
    Sketcher.Constraint("DistanceX", 0, 2, -1, 1, 37.5),
    Sketcher.Constraint("DistanceY", 0, 2, -1, 1, 50.5),
])
pocket18 = body.newObject("PartDesign::Pocket", "Pocket017")
pocket18.Profile = sketch21
pocket18.Length = 20
pocket18.Reversed = True
doc.recompute()

fillet5 = body.newObject("PartDesign::Fillet", "Fillet004")
fillet5.Base = (pocket18, edges_at(pocket18, [
    (37.5, 50.5, 2.5),
    (22.5, 50.5, 2.5),
    (37.5, 57.5, 10),
    (22.5, 57.5, 10),
    (37.5, -57.5, 10),
    (22.5, -57.5, 10),
    (22.5, -50.5, 2.5),
    (37.5, -50.5, 2.5),
    (-37.5, 57.5, 10),
    (-22.5, 57.5, 10),
    (-22.5, 50.5, 2.5),
    (-37.5, 50.5, 2.5),
    (-37.5, -50.5, 2.5),
    (-22.5, -50.5, 2.5),
    (-37.5, -57.5, 10),
    (-22.5, -57.5, 10),
]))
fillet5.Radius = 2

doc.recompute()
